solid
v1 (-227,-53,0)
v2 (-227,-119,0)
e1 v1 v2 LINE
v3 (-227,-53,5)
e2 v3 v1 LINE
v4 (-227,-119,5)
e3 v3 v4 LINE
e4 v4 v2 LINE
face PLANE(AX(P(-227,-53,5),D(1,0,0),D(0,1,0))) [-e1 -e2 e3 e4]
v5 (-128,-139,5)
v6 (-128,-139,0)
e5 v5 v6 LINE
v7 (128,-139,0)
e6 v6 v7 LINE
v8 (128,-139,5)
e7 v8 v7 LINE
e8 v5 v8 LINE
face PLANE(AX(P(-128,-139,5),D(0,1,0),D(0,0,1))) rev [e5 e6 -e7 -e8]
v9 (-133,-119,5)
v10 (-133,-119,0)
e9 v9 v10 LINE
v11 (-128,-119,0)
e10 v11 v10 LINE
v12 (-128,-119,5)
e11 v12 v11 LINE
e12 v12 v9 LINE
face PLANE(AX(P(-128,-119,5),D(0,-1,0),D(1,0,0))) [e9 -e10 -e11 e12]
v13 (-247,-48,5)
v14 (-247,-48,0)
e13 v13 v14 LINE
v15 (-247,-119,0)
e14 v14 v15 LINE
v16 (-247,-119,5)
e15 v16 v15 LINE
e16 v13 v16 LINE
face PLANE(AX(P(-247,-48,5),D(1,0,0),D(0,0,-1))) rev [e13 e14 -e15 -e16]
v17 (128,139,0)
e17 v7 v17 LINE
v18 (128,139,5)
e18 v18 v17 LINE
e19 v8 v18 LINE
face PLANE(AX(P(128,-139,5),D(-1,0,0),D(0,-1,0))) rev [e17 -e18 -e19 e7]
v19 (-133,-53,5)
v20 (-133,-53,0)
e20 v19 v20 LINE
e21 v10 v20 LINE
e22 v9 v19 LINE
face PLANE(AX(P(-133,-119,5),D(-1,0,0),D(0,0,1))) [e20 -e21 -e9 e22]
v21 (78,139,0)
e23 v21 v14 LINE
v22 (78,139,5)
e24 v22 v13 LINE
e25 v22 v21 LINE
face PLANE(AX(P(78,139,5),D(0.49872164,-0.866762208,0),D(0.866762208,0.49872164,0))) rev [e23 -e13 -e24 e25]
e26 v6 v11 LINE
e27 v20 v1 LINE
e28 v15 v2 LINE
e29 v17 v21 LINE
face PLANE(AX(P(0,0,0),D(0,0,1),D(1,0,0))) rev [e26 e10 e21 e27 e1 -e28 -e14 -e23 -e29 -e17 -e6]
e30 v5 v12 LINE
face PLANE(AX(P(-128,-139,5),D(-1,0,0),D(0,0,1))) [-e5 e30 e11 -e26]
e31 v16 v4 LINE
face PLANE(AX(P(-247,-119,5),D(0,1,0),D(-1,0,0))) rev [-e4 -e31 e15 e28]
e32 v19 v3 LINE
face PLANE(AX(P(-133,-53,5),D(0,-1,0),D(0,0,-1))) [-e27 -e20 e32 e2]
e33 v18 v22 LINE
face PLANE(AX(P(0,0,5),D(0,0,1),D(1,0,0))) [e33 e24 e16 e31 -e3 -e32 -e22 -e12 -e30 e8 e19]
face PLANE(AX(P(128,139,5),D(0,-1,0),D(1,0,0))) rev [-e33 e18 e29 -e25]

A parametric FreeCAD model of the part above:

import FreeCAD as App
import Part
import Sketcher
from FreeCAD import Vector

doc = App.newDocument("Part")
body = doc.addObject("PartDesign::Body", "Body")

sketch1 = body.newObject("Sketcher::SketchObject", "Sketch")
sketch1.AttachmentSupport = (doc.getObject("XY_Plane"), [""])
sketch1.MapMode = "FlatFace"
sketch1.addGeometry(Part.LineSegment(Vector(-128, -139, 0), Vector(128, -139, 0)), False)
sketch1.addGeometry(Part.LineSegment(Vector(128, -139, 0), Vector(128, 139, 0)), False)
sketch1.addGeometry(Part.LineSegment(Vector(128, 139, 0), Vector(78, 139, 0)), False)
sketch1.addGeometry(Part.LineSegment(Vector(78, 139, 0), Vector(-247, -48, 0)), False)
sketch1.addGeometry(Part.LineSegment(Vector(-247, -48, 0), Vector(-247, -119, 0)), False)
sketch1.addGeometry(Part.LineSegment(Vector(-247, -119, 0), Vector(-227, -119, 0)), False)
sketch1.addGeometry(Part.LineSegment(Vector(-227, -119, 0), Vector(-227, -53, 0)), False)
sketch1.addGeometry(Part.LineSegment(Vector(-227, -53, 0), Vector(-133, -53, 0)), False)
sketch1.addGeometry(Part.LineSegment(Vector(-133, -53, 0), Vector(-133, -119, 0)), False)
sketch1.addGeometry(Part.LineSegment(Vector(-133, -119, 0), Vector(-128, -119, 0)), False)
sketch1.addGeometry(Part.LineSegment(Vector(-128, -119, 0), Vector(-128, -139, 0)), False)
sketch1.addConstraint(Sketcher.Constraint("Coincident", 0, 2, 1, 1))
sketch1.addConstraint(Sketcher.Constraint("Coincident", 1, 2, 2, 1))
sketch1.addConstraint(Sketcher.Constraint("Coincident", 2, 2, 3, 1))
sketch1.addConstraint(Sketcher.Constraint("Coincident", 3, 2, 4, 1))
sketch1.addConstraint(Sketcher.Constraint("Coincident", 4, 2, 5, 1))
sketch1.addConstraint(Sketcher.Constraint("Coincident", 5, 2, 6, 1))
sketch1.addConstraint(Sketcher.Constraint("Coincident", 6, 2, 7, 1))
sketch1.addConstraint(Sketcher.Constraint("Coincident", 7, 2, 8, 1))
sketch1.addConstraint(Sketcher.Constraint("Coincident", 8, 2, 9, 1))
sketch1.addConstraint(Sketcher.Constraint("Coincident", 9, 2, 10, 1))
sketch1.addConstraint(Sketcher.Constraint("Coincident", 10, 2, 0, 1))
sketch1.addConstraint(Sketcher.Constraint("Horizontal", 0))
sketch1.addConstraint(Sketcher.Constraint("Vertical", 1))
sketch1.addConstraint(Sketcher.Constraint("Horizontal", 2))
sketch1.addConstraint(Sketcher.Constraint("Vertical", 4))
sketch1.addConstraint(Sketcher.Constraint("Horizontal", 5))
sketch1.addConstraint(Sketcher.Constraint("Vertical", 6))
sketch1.addConstraint(Sketcher.Constraint("Horizontal", 7))
sketch1.addConstraint(Sketcher.Constraint("Vertical", 8))
sketch1.addConstraint(Sketcher.Constraint("Horizontal", 9))
sketch1.addConstraint(Sketcher.Constraint("Vertical", 10))
sketch1.addConstraint(Sketcher.Constraint("Symmetric", 1, 2, 10, 2, -1, 1))
sketch1.addConstraint(Sketcher.Constraint("Horizontal", 5, 2, 8, 2))
sketch1.addConstraint(Sketcher.Constraint("Equal", 5, 10))
sketch1.addConstraint(Sketcher.Constraint("DistanceX", 0, 1, 0, 2, 256.0))
sketch1.addConstraint(Sketcher.Constraint("DistanceX", 2, 2, 2, 1, 50.0))
sketch1.addConstraint(Sketcher.Constraint("DistanceX", 5, 1, 5, 2, 20.0))
sketch1.addConstraint(Sketcher.Constraint("DistanceX", 7, 1, 7, 2, 94.0))
sketch1.addConstraint(Sketcher.Constraint("DistanceX", 9, 1, 9, 2, 5.0))
sketch1.addConstraint(Sketcher.Constraint("DistanceY", 1, 1, 1, 2, 278.0))
sketch1.addConstraint(Sketcher.Constraint("DistanceY", 4, 2, 4, 1, 71.0))
sketch1.addConstraint(Sketcher.Constraint("DistanceY", 6, 1, 6, 2, 66.0))
pad1 = body.newObject("PartDesign::Pad", "Pad")
pad1.Profile = sketch1
pad1.Length = 5

doc.recompute()
